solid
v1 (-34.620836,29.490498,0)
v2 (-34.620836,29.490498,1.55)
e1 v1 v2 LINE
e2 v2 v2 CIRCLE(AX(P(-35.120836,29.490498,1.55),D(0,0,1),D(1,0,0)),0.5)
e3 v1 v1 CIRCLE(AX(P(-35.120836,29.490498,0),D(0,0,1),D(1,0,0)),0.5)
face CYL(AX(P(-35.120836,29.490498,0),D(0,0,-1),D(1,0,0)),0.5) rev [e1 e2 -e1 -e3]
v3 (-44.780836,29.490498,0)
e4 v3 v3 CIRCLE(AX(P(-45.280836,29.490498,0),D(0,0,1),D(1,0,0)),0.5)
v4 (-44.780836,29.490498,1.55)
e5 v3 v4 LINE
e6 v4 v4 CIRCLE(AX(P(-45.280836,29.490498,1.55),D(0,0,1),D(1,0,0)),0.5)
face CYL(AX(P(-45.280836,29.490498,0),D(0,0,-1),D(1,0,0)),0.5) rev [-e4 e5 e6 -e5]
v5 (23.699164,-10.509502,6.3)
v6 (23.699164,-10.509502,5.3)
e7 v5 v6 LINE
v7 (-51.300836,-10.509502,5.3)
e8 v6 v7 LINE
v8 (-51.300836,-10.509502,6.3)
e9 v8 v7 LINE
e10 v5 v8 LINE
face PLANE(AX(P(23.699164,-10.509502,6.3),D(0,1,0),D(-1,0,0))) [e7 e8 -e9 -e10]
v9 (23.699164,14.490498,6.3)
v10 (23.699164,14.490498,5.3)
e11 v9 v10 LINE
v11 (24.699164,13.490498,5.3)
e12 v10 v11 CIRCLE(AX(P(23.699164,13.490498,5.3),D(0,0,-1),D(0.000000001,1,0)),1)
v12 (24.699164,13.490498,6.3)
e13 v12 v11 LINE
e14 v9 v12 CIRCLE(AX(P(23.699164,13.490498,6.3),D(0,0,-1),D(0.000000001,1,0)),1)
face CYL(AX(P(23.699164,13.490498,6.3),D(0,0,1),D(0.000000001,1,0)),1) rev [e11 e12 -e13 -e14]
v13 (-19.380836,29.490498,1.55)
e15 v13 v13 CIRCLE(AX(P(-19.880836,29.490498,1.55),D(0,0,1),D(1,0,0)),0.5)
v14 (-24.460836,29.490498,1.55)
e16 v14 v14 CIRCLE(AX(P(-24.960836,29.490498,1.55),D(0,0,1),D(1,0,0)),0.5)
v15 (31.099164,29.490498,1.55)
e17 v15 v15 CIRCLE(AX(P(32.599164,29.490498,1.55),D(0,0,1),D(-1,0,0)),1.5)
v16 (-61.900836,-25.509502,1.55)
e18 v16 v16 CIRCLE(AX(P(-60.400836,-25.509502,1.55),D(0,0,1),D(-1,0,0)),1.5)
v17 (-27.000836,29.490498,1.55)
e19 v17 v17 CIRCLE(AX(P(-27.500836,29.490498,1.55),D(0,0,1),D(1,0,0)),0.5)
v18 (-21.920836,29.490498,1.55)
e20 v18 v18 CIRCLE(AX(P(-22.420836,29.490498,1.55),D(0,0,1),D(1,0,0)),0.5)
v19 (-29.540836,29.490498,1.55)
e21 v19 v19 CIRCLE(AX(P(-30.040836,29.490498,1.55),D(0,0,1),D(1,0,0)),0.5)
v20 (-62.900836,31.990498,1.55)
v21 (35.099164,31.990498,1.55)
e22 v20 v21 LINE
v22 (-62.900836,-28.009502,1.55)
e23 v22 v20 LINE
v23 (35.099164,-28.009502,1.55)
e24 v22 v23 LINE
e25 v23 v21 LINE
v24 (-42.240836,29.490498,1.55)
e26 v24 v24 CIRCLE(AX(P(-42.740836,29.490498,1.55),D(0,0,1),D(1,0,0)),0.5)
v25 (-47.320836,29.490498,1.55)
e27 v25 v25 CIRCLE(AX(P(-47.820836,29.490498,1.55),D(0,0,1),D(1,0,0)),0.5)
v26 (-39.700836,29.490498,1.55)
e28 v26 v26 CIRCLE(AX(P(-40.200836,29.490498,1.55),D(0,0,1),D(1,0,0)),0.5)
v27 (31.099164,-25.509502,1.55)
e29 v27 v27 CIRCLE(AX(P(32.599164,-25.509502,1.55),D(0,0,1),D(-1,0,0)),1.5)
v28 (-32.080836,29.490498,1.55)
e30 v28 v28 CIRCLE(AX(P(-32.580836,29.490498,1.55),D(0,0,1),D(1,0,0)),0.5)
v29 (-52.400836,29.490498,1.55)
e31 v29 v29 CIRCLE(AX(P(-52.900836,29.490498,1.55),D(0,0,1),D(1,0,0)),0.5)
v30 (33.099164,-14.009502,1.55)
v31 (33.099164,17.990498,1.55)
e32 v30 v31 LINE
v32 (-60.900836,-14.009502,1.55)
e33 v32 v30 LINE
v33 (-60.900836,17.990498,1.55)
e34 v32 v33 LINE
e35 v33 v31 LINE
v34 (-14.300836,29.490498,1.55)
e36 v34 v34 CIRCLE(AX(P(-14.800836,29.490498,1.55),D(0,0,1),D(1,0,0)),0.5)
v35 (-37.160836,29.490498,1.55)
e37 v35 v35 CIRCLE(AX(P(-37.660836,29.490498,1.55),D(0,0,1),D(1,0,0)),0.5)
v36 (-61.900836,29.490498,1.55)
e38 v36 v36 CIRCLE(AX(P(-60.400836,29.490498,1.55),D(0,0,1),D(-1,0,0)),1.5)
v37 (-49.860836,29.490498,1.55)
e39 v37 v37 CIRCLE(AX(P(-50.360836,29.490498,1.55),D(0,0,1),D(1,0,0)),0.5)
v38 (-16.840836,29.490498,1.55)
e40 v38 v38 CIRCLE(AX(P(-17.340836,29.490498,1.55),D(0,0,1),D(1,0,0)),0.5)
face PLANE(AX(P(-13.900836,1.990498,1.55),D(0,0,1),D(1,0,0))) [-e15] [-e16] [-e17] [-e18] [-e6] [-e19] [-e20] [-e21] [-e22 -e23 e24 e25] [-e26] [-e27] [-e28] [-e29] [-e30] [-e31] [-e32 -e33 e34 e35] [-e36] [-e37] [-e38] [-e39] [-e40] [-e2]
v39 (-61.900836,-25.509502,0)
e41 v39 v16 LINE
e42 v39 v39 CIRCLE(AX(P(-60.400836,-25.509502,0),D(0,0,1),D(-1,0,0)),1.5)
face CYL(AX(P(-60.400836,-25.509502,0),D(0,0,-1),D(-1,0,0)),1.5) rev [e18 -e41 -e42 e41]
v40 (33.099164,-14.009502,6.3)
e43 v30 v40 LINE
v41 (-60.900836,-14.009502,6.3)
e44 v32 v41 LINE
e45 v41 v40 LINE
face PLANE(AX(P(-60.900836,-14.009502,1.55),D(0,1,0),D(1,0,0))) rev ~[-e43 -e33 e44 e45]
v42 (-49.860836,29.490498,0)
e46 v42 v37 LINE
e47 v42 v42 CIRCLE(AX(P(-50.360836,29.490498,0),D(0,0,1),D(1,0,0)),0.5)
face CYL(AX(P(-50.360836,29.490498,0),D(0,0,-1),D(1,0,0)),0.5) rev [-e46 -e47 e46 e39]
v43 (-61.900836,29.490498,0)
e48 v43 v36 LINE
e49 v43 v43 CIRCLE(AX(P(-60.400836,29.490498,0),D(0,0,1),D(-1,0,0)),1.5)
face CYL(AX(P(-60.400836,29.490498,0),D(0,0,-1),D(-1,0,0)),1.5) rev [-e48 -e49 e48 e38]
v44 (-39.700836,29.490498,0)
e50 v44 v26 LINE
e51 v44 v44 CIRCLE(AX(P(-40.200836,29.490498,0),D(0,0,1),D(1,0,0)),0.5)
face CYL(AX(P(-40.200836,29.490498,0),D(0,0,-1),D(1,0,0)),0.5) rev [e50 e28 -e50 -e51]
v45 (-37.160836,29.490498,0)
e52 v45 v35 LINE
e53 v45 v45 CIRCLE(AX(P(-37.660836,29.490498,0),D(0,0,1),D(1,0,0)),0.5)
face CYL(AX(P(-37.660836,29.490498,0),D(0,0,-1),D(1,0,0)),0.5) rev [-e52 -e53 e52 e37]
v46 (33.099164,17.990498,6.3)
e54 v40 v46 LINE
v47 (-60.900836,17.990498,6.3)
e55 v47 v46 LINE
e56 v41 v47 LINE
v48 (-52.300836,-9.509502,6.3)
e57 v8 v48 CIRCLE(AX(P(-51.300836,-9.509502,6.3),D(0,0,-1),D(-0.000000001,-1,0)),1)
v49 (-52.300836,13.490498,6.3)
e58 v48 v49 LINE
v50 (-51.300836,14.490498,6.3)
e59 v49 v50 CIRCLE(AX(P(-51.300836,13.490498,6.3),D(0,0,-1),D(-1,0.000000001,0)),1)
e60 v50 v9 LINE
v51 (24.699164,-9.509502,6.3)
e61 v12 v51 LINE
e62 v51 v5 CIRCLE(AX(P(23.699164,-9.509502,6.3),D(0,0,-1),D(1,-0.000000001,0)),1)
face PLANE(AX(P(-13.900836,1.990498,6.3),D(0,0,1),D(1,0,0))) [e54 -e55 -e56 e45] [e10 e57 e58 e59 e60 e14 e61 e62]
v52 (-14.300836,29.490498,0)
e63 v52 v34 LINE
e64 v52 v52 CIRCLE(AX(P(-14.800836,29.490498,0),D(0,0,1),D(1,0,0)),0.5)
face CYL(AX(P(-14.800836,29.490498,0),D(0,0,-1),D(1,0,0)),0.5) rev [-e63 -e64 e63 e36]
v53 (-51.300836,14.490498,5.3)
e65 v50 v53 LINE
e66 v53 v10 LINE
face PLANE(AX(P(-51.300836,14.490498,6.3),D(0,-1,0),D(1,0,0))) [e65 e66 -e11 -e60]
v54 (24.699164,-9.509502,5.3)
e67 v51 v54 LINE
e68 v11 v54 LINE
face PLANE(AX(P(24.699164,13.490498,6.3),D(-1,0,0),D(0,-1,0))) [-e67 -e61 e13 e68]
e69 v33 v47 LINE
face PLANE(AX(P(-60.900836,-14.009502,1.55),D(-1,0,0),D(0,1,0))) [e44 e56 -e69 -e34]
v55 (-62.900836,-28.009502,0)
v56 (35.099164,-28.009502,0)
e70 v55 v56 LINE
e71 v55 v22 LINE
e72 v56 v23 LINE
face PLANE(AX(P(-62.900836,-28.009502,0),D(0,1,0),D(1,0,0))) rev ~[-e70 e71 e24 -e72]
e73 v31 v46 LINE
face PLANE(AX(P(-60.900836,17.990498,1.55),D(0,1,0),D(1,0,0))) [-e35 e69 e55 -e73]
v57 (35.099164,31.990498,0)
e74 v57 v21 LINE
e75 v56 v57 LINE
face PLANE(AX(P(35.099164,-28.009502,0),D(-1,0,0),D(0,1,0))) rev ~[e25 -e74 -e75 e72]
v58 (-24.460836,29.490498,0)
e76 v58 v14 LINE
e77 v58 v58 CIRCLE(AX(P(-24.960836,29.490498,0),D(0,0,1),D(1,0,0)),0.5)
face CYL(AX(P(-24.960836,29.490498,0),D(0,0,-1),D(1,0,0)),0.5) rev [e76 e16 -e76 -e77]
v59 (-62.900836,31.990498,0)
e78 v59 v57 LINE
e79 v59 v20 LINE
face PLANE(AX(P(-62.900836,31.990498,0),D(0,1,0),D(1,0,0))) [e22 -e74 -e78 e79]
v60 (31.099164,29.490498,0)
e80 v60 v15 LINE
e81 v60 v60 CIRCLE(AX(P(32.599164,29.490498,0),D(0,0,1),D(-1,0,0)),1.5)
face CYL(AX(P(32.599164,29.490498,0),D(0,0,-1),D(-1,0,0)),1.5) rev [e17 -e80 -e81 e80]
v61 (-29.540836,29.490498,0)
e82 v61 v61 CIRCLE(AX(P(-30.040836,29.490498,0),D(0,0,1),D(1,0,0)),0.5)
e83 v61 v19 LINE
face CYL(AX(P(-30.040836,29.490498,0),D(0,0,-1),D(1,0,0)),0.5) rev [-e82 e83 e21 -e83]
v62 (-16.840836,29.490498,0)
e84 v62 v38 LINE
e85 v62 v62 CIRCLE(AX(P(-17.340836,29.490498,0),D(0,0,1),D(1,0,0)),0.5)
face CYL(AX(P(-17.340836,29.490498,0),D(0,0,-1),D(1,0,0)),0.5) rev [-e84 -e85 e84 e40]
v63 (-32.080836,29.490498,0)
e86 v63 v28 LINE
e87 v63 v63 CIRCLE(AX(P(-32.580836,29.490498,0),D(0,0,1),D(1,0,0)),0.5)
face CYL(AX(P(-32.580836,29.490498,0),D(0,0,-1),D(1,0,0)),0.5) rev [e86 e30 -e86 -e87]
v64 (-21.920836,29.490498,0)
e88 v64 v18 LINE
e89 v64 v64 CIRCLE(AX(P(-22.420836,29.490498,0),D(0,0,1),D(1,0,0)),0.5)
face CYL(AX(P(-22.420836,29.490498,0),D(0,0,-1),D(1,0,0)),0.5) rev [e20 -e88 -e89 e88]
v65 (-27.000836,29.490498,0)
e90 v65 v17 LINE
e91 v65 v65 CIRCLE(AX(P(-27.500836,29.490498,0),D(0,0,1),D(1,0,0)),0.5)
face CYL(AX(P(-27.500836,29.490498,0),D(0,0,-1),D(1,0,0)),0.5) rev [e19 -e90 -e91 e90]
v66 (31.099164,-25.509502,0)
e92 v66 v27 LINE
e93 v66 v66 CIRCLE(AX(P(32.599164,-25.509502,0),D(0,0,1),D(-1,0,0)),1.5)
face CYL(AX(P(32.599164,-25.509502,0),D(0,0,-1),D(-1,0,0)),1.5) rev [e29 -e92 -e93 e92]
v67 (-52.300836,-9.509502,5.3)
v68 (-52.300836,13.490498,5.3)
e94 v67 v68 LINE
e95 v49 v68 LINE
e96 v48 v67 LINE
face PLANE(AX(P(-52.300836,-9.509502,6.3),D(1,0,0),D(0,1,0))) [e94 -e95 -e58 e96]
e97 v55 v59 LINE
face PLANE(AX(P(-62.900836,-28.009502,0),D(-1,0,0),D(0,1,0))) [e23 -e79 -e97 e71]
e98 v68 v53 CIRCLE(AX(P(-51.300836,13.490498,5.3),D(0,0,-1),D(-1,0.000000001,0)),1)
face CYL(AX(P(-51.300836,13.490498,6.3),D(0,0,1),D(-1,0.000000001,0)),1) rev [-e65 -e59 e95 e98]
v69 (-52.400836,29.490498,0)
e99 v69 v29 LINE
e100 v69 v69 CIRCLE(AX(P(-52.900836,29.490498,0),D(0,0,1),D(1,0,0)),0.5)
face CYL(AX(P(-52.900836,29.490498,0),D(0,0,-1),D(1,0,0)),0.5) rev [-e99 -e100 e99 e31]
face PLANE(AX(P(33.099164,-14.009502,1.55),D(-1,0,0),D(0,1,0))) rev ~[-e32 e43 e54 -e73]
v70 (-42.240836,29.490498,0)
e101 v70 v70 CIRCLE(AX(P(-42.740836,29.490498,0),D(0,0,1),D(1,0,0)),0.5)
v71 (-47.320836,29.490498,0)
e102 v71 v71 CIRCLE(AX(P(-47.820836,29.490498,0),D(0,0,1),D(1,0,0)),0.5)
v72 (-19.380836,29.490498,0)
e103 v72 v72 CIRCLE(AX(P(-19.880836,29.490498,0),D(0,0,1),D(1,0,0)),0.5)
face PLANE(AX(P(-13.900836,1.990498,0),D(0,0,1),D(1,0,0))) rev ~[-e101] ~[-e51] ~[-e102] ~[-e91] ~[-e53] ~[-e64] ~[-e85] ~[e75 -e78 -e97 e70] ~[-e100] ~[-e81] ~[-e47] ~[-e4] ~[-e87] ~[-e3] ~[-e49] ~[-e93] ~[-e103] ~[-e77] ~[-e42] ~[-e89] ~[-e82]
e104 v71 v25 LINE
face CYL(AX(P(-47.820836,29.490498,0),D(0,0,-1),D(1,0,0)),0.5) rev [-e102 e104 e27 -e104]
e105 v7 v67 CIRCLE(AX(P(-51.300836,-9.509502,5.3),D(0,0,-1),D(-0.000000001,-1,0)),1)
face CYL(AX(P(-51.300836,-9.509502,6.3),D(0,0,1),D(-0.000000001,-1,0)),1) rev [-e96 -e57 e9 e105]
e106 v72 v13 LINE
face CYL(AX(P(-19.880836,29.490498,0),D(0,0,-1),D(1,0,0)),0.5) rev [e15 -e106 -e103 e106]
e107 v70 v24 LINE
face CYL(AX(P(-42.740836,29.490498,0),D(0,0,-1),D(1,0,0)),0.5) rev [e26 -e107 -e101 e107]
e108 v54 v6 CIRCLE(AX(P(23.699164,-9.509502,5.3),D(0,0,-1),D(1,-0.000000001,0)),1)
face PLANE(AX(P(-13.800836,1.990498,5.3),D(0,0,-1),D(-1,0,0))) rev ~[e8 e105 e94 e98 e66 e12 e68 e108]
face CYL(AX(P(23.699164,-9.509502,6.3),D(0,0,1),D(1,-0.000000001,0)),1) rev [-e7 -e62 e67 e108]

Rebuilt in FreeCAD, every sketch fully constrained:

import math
import FreeCAD as App
import Part
import Sketcher
from FreeCAD import Vector
Q = App.Units.Quantity

doc = App.newDocument("Part")
body = doc.addObject("PartDesign::Body", "Body")

# Sketch on XY plane
sketch1 = doc.addObject("Sketcher::SketchObject", "Sketch")
body.addObject(sketch1)
sketch1.AttachmentSupport = (doc.XY_Plane, [""])
sketch1.MapMode = "FlatFace"
sketch1.addGeometry(Part.LineSegment(Vector(-62.900836, 31.990498, 0), Vector(-62.900836, -28.009502, 0)), False)
sketch1.addGeometry(Part.LineSegment(Vector(-62.900836, -28.009502, 0), Vector(35.099164, -28.009502, 0)), False)
sketch1.addGeometry(Part.LineSegment(Vector(35.099164, -28.009502, 0), Vector(35.099164, 31.990498, 0)), False)
sketch1.addGeometry(Part.LineSegment(Vector(35.099164, 31.990498, 0), Vector(-62.900836, 31.990498, 0)), False)
sketch1.addGeometry(Part.Circle(Vector(-60.400836, -25.509502, 0), Vector(0, 0, 1), 1.5), False)
sketch1.addGeometry(Part.Circle(Vector(32.599164, -25.509502, 0), Vector(0, 0, 1), 1.5), False)
sketch1.addGeometry(Part.Circle(Vector(-60.400836, 29.490498, 0), Vector(0, 0, 1), 1.5), False)
sketch1.addGeometry(Part.Circle(Vector(-52.900836, 29.490498, 0), Vector(0, 0, 1), 0.5), False)
sketch1.addGeometry(Part.Circle(Vector(-50.360836, 29.490498, 0), Vector(0, 0, 1), 0.5), False)
sketch1.addGeometry(Part.Circle(Vector(-47.820836, 29.490498, 0), Vector(0, 0, 1), 0.5), False)
sketch1.addGeometry(Part.Circle(Vector(-45.280836, 29.490498, 0), Vector(0, 0, 1), 0.5), False)
sketch1.addGeometry(Part.Circle(Vector(-42.740836, 29.490498, 0), Vector(0, 0, 1), 0.5), False)
sketch1.addGeometry(Part.Circle(Vector(-40.200836, 29.490498, 0), Vector(0, 0, 1), 0.5), False)
sketch1.addGeometry(Part.Circle(Vector(-37.660836, 29.490498, 0), Vector(0, 0, 1), 0.5), False)
sketch1.addGeometry(Part.Circle(Vector(-35.120836, 29.490498, 0), Vector(0, 0, 1), 0.5), False)
sketch1.addGeometry(Part.Circle(Vector(-32.580836, 29.490498, 0), Vector(0, 0, 1), 0.5), False)
sketch1.addGeometry(Part.Circle(Vector(-30.040836, 29.490498, 0), Vector(0, 0, 1), 0.5), False)
sketch1.addGeometry(Part.Circle(Vector(-27.500836, 29.490498, 0), Vector(0, 0, 1), 0.5), False)
sketch1.addGeometry(Part.Circle(Vector(-24.960836, 29.490498, 0), Vector(0, 0, 1), 0.5), False)
sketch1.addGeometry(Part.Circle(Vector(-22.420836, 29.490498, 0), Vector(0, 0, 1), 0.5), False)
sketch1.addGeometry(Part.Circle(Vector(-19.880836, 29.490498, 0), Vector(0, 0, 1), 0.5), False)
sketch1.addGeometry(Part.Circle(Vector(-17.340836, 29.490498, 0), Vector(0, 0, 1), 0.5), False)
sketch1.addGeometry(Part.Circle(Vector(-14.800836, 29.490498, 0), Vector(0, 0, 1), 0.5), False)
sketch1.addGeometry(Part.Circle(Vector(32.599164, 29.490498, 0), Vector(0, 0, 1), 1.5), False)
sketch1.addConstraint(Sketcher.Constraint("Coincident", 0, 2, 1, 1))
sketch1.addConstraint(Sketcher.Constraint("Coincident", 1, 2, 2, 1))
sketch1.addConstraint(Sketcher.Constraint("Coincident", 2, 2, 3, 1))
sketch1.addConstraint(Sketcher.Constraint("Coincident", 3, 2, 0, 1))
sketch1.addConstraint(Sketcher.Constraint("Vertical", 0))
sketch1.addConstraint(Sketcher.Constraint("Horizontal", 1))
sketch1.addConstraint(Sketcher.Constraint("Vertical", 2))
sketch1.addConstraint(Sketcher.Constraint("Horizontal", 3))
sketch1.addConstraint(Sketcher.Constraint("Equal", 4, 5))
sketch1.addConstraint(Sketcher.Constraint("Equal", 5, 6))
sketch1.addConstraint(Sketcher.Constraint("Equal", 7, 8))
sketch1.addConstraint(Sketcher.Constraint("Equal", 8, 9))
sketch1.addConstraint(Sketcher.Constraint("Equal", 9, 10))
sketch1.addConstraint(Sketcher.Constraint("Equal", 10, 11))
sketch1.addConstraint(Sketcher.Constraint("Equal", 11, 12))
sketch1.addConstraint(Sketcher.Constraint("Equal", 12, 13))
sketch1.addConstraint(Sketcher.Constraint("Equal", 13, 14))
sketch1.addConstraint(Sketcher.Constraint("Equal", 14, 15))
sketch1.addConstraint(Sketcher.Constraint("Equal", 15, 16))
sketch1.addConstraint(Sketcher.Constraint("Equal", 16, 17))
sketch1.addConstraint(Sketcher.Constraint("Equal", 17, 18))
sketch1.addConstraint(Sketcher.Constraint("Equal", 18, 19))
sketch1.addConstraint(Sketcher.Constraint("Equal", 19, 20))
sketch1.addConstraint(Sketcher.Constraint("Equal", 20, 21))
sketch1.addConstraint(Sketcher.Constraint("Equal", 21, 22))
sketch1.addConstraint(Sketcher.Constraint("Equal", 6, 23))
sketch1.addConstraint(Sketcher.Constraint("Horizontal", 4, 3, 5, 3))
sketch1.addConstraint(Sketcher.Constraint("Horizontal", 6, 3, 7, 3))
sketch1.addConstraint(Sketcher.Constraint("Horizontal", 7, 3, 8, 3))
sketch1.addConstraint(Sketcher.Constraint("Horizontal", 8, 3, 9, 3))
sketch1.addConstraint(Sketcher.Constraint("Horizontal", 9, 3, 10, 3))
sketch1.addConstraint(Sketcher.Constraint("Horizontal", 10, 3, 11, 3))
sketch1.addConstraint(Sketcher.Constraint("Horizontal", 11, 3, 12, 3))
sketch1.addConstraint(Sketcher.Constraint("Horizontal", 12, 3, 13, 3))
sketch1.addConstraint(Sketcher.Constraint("Horizontal", 13, 3, 14, 3))
sketch1.addConstraint(Sketcher.Constraint("Horizontal", 14, 3, 15, 3))
sketch1.addConstraint(Sketcher.Constraint("Horizontal", 15, 3, 16, 3))
sketch1.addConstraint(Sketcher.Constraint("Horizontal", 16, 3, 17, 3))
sketch1.addConstraint(Sketcher.Constraint("Horizontal", 17, 3, 18, 3))
sketch1.addConstraint(Sketcher.Constraint("Horizontal", 18, 3, 19, 3))
sketch1.addConstraint(Sketcher.Constraint("Horizontal", 19, 3, 20, 3))
sketch1.addConstraint(Sketcher.Constraint("Horizontal", 20, 3, 21, 3))
sketch1.addConstraint(Sketcher.Constraint("Horizontal", 21, 3, 22, 3))
sketch1.addConstraint(Sketcher.Constraint("Horizontal", 22, 3, 23, 3))
sketch1.addConstraint(Sketcher.Constraint("Vertical", 4, 3, 6, 3))
sketch1.addConstraint(Sketcher.Constraint("Vertical", 5, 3, 23, 3))
sketch1.addConstraint(Sketcher.Constraint("Diameter", 4, Q("3 mm")))
sketch1.addConstraint(Sketcher.Constraint("Diameter", 7, Q("1 mm")))
sketch1.addConstraint(Sketcher.Constraint("DistanceX", 1, 1, 1, 2, Q("98 mm")))
sketch1.addConstraint(Sketcher.Constraint("DistanceY", 0, 2, 0, 1, Q("60 mm")))
sketch1.addConstraint(Sketcher.Constraint("DistanceX", 4, 3, 5, 3, Q("93 mm")))
sketch1.addConstraint(Sketcher.Constraint("DistanceY", 4, 3, 6, 3, Q("55 mm")))
sketch1.addConstraint(Sketcher.Constraint("DistanceX", 0, 2, 7, 3, Q("10 mm")))
sketch1.addConstraint(Sketcher.Constraint("DistanceX", 6, 3, 7, 3, Q("7.5 mm")))
sketch1.addConstraint(Sketcher.Constraint("DistanceX", 7, 3, 12, 3, Q("12.7 mm")))
sketch1.addConstraint(Sketcher.Constraint("DistanceX", 8, 3, 13, 3, Q("12.7 mm")))
sketch1.addConstraint(Sketcher.Constraint("DistanceX", 9, 3, 14, 3, Q("12.7 mm")))
sketch1.addConstraint(Sketcher.Constraint("DistanceX", 10, 3, 15, 3, Q("12.7 mm")))
sketch1.addConstraint(Sketcher.Constraint("DistanceX", 11, 3, 16, 3, Q("12.7 mm")))
sketch1.addConstraint(Sketcher.Constraint("DistanceX", 12, 3, 17, 3, Q("12.7 mm")))
sketch1.addConstraint(Sketcher.Constraint("DistanceX", 13, 3, 18, 3, Q("12.7 mm")))
sketch1.addConstraint(Sketcher.Constraint("DistanceX", 14, 3, 19, 3, Q("12.7 mm")))
sketch1.addConstraint(Sketcher.Constraint("DistanceX", 15, 3, 20, 3, Q("12.7 mm")))
sketch1.addConstraint(Sketcher.Constraint("DistanceX", 16, 3, 21, 3, Q("12.7 mm")))
sketch1.addConstraint(Sketcher.Constraint("DistanceX", 17, 3, 22, 3, Q("12.7 mm")))
sketch1.addConstraint(Sketcher.Constraint("DistanceY", 0, 2, 4, 3, Q("2.5 mm")))
sketch1.addConstraint(Sketcher.Constraint("DistanceX", 7, 3, 8, 3, Q("2.54 mm")))
sketch1.addConstraint(Sketcher.Constraint("DistanceX", 8, 3, 9, 3, Q("2.54 mm")))
sketch1.addConstraint(Sketcher.Constraint("DistanceX", 9, 3, 10, 3, Q("2.54 mm")))
sketch1.addConstraint(Sketcher.Constraint("DistanceX", 10, 3, 11, 3, Q("2.54 mm")))
sketch1.addConstraint(Sketcher.Constraint("DistanceY", 4, 3, -1, 1, Q("25.509502 mm")))
sketch1.addConstraint(Sketcher.Constraint("DistanceX", 4, 3, -1, 1, Q("60.400836 mm")))
pad1 = doc.addObject("PartDesign::Pad", "Pad")
body.addObject(pad1)
pad1.Profile = sketch1
pad1.Length = 1.55

# Sketch on XY plane
sketch2 = doc.addObject("Sketcher::SketchObject", "Sketch001")
body.addObject(sketch2)
sketch2.AttachmentSupport = (doc.XY_Plane, [""])
sketch2.MapMode = "FlatFace"
sketch2.AttachmentOffset = App.Placement(Vector(0, 0, 1.55), App.Rotation())
sketch2.addGeometry(Part.LineSegment(Vector(-60.900836, 17.990498, 0), Vector(-60.900836, -14.009502, 0)), False)
sketch2.addGeometry(Part.LineSegment(Vector(-60.900836, -14.009502, 0), Vector(33.099164, -14.009502, 0)), False)
sketch2.addGeometry(Part.LineSegment(Vector(33.099164, -14.009502, 0), Vector(33.099164, 17.990498, 0)), False)
sketch2.addGeometry(Part.LineSegment(Vector(33.099164, 17.990498, 0), Vector(-60.900836, 17.990498, 0)), False)
sketch2.addConstraint(Sketcher.Constraint("Coincident", 0, 2, 1, 1))
sketch2.addConstraint(Sketcher.Constraint("Coincident", 1, 2, 2, 1))
sketch2.addConstraint(Sketcher.Constraint("Coincident", 2, 2, 3, 1))
sketch2.addConstraint(Sketcher.Constraint("Coincident", 3, 2, 0, 1))
sketch2.addConstraint(Sketcher.Constraint("Vertical", 0))
sketch2.addConstraint(Sketcher.Constraint("Horizontal", 1))
sketch2.addConstraint(Sketcher.Constraint("Vertical", 2))
sketch2.addConstraint(Sketcher.Constraint("Horizontal", 3))
sketch2.addConstraint(Sketcher.Constraint("DistanceX", 1, 1, 1, 2, Q("94 mm")))
sketch2.addConstraint(Sketcher.Constraint("DistanceY", 0, 2, 0, 1, Q("32 mm")))
sketch2.addConstraint(Sketcher.Constraint("DistanceY", 0, 2, -1, 1, Q("14.009502 mm")))
sketch2.addConstraint(Sketcher.Constraint("DistanceX", 0, 2, -1, 1, Q("60.900836 mm")))
pad2 = doc.addObject("PartDesign::Pad", "Pad001")
body.addObject(pad2)
pad2.Profile = sketch2
pad2.Length = 4.75

# Sketch on XY plane
sketch3 = doc.addObject("Sketcher::SketchObject", "Sketch002")
body.addObject(sketch3)
sketch3.AttachmentSupport = (doc.XY_Plane, [""])
sketch3.MapMode = "FlatFace"
sketch3.AttachmentOffset = App.Placement(Vector(0, 0, 6.3), App.Rotation())
sketch3.addGeometry(Part.LineSegment(Vector(23.699164, 14.490498, 0), Vector(-51.300836, 14.490498, 0)), False)
sketch3.addGeometry(Part.ArcOfCircle(Part.Circle(Vector(-51.300836, 13.490498, 0), Vector(0, 0, 1), 1), math.radians(90), math.radians(180)), False)
sketch3.addGeometry(Part.LineSegment(Vector(-52.300836, 13.490498, 0), Vector(-52.300836, -9.509502, 0)), False)
sketch3.addGeometry(Part.ArcOfCircle(Part.Circle(Vector(-51.300836, -9.509502, 0), Vector(0, 0, 1), 1), math.radians(-180), math.radians(-90)), False)
sketch3.addGeometry(Part.LineSegment(Vector(-51.300836, -10.509502, 0), Vector(23.699164, -10.509502, 0)), False)
sketch3.addGeometry(Part.ArcOfCircle(Part.Circle(Vector(23.699164, -9.509502, 0), Vector(0, 0, 1), 1), math.radians(-90), math.radians(0)), False)
sketch3.addGeometry(Part.LineSegment(Vector(24.699164, -9.509502, 0), Vector(24.699164, 13.490498, 0)), False)
sketch3.addGeometry(Part.ArcOfCircle(Part.Circle(Vector(23.699164, 13.490498, 0), Vector(0, 0, 1), 1), math.radians(0), math.radians(90)), False)
sketch3.addConstraint(Sketcher.Constraint("Tangent", 0, 2, 1, 1))
sketch3.addConstraint(Sketcher.Constraint("Tangent", 1, 2, 2, 1))
sketch3.addConstraint(Sketcher.Constraint("Tangent", 2, 2, 3, 1))
sketch3.addConstraint(Sketcher.Constraint("Tangent", 3, 2, 4, 1))
sketch3.addConstraint(Sketcher.Constraint("Tangent", 4, 2, 5, 1))
sketch3.addConstraint(Sketcher.Constraint("Tangent", 5, 2, 6, 1))
sketch3.addConstraint(Sketcher.Constraint("Tangent", 6, 2, 7, 1))
sketch3.addConstraint(Sketcher.Constraint("Tangent", 7, 2, 0, 1))
sketch3.addConstraint(Sketcher.Constraint("Horizontal", 0))
sketch3.addConstraint(Sketcher.Constraint("Vertical", 2))
sketch3.addConstraint(Sketcher.Constraint("Horizontal", 4))
sketch3.addConstraint(Sketcher.Constraint("Vertical", 6))
sketch3.addConstraint(Sketcher.Constraint("Equal", 1, 3))
sketch3.addConstraint(Sketcher.Constraint("Equal", 3, 5))
sketch3.addConstraint(Sketcher.Constraint("Equal", 5, 7))
sketch3.addConstraint(Sketcher.Constraint("Radius", 1, Q("1 mm")))
sketch3.addConstraint(Sketcher.Constraint("DistanceX", 0, 2, 0, 1, Q("75 mm")))
sketch3.addConstraint(Sketcher.Constraint("DistanceY", 2, 2, 2, 1, Q("23 mm")))
sketch3.addConstraint(Sketcher.Constraint("DistanceY", -1, 1, 1, 3, Q("13.490498 mm")))
sketch3.addConstraint(Sketcher.Constraint("DistanceX", 1, 3, -1, 1, Q("51.300836 mm")))
pocket1 = doc.addObject("PartDesign::Pocket", "Pocket")
body.addObject(pocket1)
pocket1.Profile = sketch3
pocket1.Length = 1

doc.recompute()
